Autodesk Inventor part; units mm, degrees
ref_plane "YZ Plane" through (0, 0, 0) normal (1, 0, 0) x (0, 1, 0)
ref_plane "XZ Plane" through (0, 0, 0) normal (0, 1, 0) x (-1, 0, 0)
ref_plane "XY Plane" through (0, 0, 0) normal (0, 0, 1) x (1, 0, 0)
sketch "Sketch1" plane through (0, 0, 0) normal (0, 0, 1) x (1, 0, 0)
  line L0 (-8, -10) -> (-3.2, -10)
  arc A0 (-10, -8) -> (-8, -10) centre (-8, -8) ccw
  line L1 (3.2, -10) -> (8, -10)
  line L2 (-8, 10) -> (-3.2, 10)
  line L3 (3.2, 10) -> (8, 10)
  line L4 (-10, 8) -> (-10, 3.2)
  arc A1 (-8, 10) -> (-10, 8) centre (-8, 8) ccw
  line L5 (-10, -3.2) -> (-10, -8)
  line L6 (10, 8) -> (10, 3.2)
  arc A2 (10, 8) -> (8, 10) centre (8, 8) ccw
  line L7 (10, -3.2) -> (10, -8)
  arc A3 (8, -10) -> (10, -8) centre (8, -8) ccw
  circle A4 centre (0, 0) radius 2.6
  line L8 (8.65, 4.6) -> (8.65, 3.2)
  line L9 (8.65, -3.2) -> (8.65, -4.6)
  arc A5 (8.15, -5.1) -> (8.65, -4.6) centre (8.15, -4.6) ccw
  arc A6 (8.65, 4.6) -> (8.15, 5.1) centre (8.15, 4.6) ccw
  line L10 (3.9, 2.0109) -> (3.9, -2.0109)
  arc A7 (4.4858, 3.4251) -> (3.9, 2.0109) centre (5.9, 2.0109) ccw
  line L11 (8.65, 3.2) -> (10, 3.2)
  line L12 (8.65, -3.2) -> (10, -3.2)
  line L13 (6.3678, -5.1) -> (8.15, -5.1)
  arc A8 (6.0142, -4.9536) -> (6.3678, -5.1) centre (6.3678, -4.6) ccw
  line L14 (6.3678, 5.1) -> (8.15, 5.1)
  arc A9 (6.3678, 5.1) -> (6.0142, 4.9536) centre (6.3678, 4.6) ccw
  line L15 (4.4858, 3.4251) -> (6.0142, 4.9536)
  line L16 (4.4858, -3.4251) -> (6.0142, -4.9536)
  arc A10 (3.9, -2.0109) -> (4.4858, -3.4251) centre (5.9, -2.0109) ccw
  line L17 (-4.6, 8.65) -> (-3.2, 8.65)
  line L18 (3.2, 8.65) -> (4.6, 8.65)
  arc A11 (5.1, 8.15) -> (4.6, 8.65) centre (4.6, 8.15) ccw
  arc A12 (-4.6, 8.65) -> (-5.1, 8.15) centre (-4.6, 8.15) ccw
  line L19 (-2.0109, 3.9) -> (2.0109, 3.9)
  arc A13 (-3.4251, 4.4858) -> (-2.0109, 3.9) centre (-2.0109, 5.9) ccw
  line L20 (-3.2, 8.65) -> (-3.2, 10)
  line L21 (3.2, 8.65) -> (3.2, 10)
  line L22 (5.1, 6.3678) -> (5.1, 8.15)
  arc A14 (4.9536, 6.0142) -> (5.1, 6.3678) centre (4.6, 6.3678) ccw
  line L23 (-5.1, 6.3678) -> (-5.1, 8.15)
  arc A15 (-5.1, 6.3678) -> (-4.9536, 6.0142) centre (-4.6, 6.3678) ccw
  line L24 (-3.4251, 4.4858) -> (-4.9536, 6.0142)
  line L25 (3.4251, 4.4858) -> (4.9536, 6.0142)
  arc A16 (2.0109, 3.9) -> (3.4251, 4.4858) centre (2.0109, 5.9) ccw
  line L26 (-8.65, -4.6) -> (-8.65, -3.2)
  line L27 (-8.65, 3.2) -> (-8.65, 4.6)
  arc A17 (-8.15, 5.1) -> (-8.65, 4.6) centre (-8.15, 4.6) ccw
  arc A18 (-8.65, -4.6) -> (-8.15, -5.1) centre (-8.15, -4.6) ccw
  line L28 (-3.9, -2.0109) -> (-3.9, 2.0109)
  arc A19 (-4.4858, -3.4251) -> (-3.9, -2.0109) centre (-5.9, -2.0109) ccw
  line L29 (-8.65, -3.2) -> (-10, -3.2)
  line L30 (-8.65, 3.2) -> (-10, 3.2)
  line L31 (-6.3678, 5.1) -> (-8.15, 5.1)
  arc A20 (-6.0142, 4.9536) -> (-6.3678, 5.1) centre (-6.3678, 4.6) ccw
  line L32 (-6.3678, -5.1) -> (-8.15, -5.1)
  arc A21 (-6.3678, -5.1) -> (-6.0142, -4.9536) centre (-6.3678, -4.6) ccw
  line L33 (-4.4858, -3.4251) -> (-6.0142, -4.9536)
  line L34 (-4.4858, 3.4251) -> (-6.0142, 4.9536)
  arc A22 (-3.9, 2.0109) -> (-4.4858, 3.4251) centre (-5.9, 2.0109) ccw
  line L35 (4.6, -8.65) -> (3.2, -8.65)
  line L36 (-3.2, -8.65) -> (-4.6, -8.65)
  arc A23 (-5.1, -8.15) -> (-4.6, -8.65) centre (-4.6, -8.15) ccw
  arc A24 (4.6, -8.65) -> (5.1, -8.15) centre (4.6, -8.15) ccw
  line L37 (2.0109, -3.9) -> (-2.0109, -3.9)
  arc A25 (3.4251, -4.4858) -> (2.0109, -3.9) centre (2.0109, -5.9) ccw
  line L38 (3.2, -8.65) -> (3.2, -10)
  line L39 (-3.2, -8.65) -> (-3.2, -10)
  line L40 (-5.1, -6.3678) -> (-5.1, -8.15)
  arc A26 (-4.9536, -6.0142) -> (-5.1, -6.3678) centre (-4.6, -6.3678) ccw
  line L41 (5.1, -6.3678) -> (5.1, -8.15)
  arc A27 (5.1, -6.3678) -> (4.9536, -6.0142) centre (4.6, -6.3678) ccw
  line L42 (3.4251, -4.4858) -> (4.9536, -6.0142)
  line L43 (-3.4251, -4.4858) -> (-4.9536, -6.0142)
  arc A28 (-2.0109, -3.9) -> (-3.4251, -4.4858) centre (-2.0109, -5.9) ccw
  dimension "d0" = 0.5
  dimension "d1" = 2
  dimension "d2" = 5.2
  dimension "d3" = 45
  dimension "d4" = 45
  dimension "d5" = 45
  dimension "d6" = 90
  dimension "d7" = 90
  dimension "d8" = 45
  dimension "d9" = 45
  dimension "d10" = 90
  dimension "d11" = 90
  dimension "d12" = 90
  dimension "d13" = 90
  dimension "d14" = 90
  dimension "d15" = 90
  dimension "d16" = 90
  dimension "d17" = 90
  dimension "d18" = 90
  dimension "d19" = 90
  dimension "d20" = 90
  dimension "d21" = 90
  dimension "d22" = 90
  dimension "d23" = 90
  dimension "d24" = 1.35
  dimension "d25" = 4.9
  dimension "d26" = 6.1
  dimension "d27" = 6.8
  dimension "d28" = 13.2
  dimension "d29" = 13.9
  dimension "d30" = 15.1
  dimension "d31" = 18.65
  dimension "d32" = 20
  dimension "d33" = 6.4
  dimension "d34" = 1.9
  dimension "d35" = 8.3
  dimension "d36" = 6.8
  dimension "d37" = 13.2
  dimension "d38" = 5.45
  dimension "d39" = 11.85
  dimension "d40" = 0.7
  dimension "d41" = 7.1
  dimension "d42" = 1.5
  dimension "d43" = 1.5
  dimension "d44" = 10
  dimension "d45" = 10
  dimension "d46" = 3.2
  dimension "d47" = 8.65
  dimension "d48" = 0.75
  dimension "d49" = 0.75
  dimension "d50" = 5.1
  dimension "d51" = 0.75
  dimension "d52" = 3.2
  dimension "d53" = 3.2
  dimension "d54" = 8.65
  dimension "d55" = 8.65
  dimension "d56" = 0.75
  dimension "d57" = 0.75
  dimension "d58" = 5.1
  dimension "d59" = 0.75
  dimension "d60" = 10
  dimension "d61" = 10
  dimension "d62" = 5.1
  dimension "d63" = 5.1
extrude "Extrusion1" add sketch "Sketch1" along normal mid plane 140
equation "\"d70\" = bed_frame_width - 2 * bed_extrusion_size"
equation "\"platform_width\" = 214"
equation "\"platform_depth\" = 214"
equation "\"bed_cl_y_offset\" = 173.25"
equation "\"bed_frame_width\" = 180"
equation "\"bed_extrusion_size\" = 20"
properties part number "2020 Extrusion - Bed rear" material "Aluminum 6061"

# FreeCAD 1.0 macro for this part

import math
import FreeCAD as App
import Part
import Sketcher
from FreeCAD import Vector
Q = App.Units.Quantity

doc = App.newDocument("Part")
params = doc.addObject("Spreadsheet::Sheet", "Params")
for row, (alias, value) in enumerate([
    ("sketch1_radius", "2 mm"),
    ("sketch1_diameter", "5.2 mm"),
    ("sketch1_radius2", "0.5 mm"),
    ("sketch1_width", "1.35 mm"),
    ("pad1_length", "140 mm"),
], start=1):
    params.set(f"A{row}", alias)
    params.set(f"B{row}", "=" + value)
    params.setAlias(f"B{row}", alias)

body = doc.addObject("PartDesign::Body", "Body")

# Sketch on XY plane
sketch1 = body.newObject("Sketcher::SketchObject", "Sketch")
sketch1.AttachmentSupport = (doc.getObject("XY_Plane"), [""])
sketch1.MapMode = "FlatFace"
sketch1.addGeometry([
    Part.ArcOfCircle(Part.Circle(Vector(-8, -8, 0), Vector(0, 0, 1), 2), math.radians(180), math.radians(270)),  # 0
    Part.LineSegment(Vector(-8, -10, 0), Vector(-3.2, -10, 0)),  # 1
    Part.LineSegment(Vector(-3.2, -10, 0), Vector(-3.2, -8.65, 0)),  # 2
    Part.LineSegment(Vector(-3.2, -8.65, 0), Vector(-4.6, -8.65, 0)),  # 3
    Part.ArcOfCircle(Part.Circle(Vector(-4.6, -8.15, 0), Vector(0, 0, 1), 0.5), math.radians(180), math.radians(270)),  # 4
    Part.LineSegment(Vector(-5.1, -8.15, 0), Vector(-5.1, -6.37, 0)),  # 5
    Part.ArcOfCircle(Part.Circle(Vector(-4.6, -6.37, 0), Vector(0, 0, 1), 0.5), math.radians(135), math.radians(180)),  # 6
    Part.LineSegment(Vector(-4.95, -6.01, 0), Vector(-3.43, -4.49, 0)),  # 7
    Part.ArcOfCircle(Part.Circle(Vector(-2.01, -5.9, 0), Vector(0, 0, 1), 2), math.radians(90), math.radians(135)),  # 8
    Part.LineSegment(Vector(-2.01, -3.9, 0), Vector(2.01, -3.9, 0)),  # 9
    Part.ArcOfCircle(Part.Circle(Vector(2.01, -5.9, 0), Vector(0, 0, 1), 2), math.radians(45), math.radians(90)),  # 10
    Part.LineSegment(Vector(3.43, -4.49, 0), Vector(4.95, -6.01, 0)),  # 11
    Part.ArcOfCircle(Part.Circle(Vector(4.6, -6.37, 0), Vector(0, 0, 1), 0.5), math.radians(0), math.radians(45)),  # 12
    Part.LineSegment(Vector(5.1, -6.37, 0), Vector(5.1, -8.15, 0)),  # 13
    Part.ArcOfCircle(Part.Circle(Vector(4.6, -8.15, 0), Vector(0, 0, 1), 0.5), math.radians(-90), math.radians(0)),  # 14
    Part.LineSegment(Vector(4.6, -8.65, 0), Vector(3.2, -8.65, 0)),  # 15
    Part.LineSegment(Vector(3.2, -8.65, 0), Vector(3.2, -10, 0)),  # 16
    Part.LineSegment(Vector(3.2, -10, 0), Vector(8, -10, 0)),  # 17
    Part.ArcOfCircle(Part.Circle(Vector(8, -8, 0), Vector(0, 0, 1), 2), math.radians(-90), math.radians(0)),  # 18
    Part.LineSegment(Vector(10, -8, 0), Vector(10, -3.2, 0)),  # 19
    Part.LineSegment(Vector(10, -3.2, 0), Vector(8.65, -3.2, 0)),  # 20
    Part.LineSegment(Vector(8.65, -3.2, 0), Vector(8.65, -4.6, 0)),  # 21
    Part.ArcOfCircle(Part.Circle(Vector(8.15, -4.6, 0), Vector(0, 0, 1), 0.5), math.radians(-90), math.radians(0)),  # 22
    Part.LineSegment(Vector(8.15, -5.1, 0), Vector(6.37, -5.1, 0)),  # 23
    Part.ArcOfCircle(Part.Circle(Vector(6.37, -4.6, 0), Vector(0, 0, 1), 0.5), math.radians(-135), math.radians(-90)),  # 24
    Part.LineSegment(Vector(6.01, -4.95, 0), Vector(4.49, -3.43, 0)),  # 25
    Part.ArcOfCircle(Part.Circle(Vector(5.9, -2.01, 0), Vector(0, 0, 1), 2), math.radians(180), math.radians(225)),  # 26
    Part.LineSegment(Vector(3.9, -2.01, 0), Vector(3.9, 2.01, 0)),  # 27
    Part.ArcOfCircle(Part.Circle(Vector(5.9, 2.01, 0), Vector(0, 0, 1), 2), math.radians(135), math.radians(180)),  # 28
    Part.LineSegment(Vector(4.49, 3.43, 0), Vector(6.01, 4.95, 0)),  # 29
    Part.ArcOfCircle(Part.Circle(Vector(6.37, 4.6, 0), Vector(0, 0, 1), 0.5), math.radians(90), math.radians(135)),  # 30
    Part.LineSegment(Vector(6.37, 5.1, 0), Vector(8.15, 5.1, 0)),  # 31
    Part.ArcOfCircle(Part.Circle(Vector(8.15, 4.6, 0), Vector(0, 0, 1), 0.5), math.radians(0), math.radians(90)),  # 32
    Part.LineSegment(Vector(8.65, 4.6, 0), Vector(8.65, 3.2, 0)),  # 33
    Part.LineSegment(Vector(8.65, 3.2, 0), Vector(10, 3.2, 0)),  # 34
    Part.LineSegment(Vector(10, 3.2, 0), Vector(10, 8, 0)),  # 35
    Part.ArcOfCircle(Part.Circle(Vector(8, 8, 0), Vector(0, 0, 1), 2), math.radians(0), math.radians(90)),  # 36
    Part.LineSegment(Vector(8, 10, 0), Vector(3.2, 10, 0)),  # 37
    Part.LineSegment(Vector(3.2, 10, 0), Vector(3.2, 8.65, 0)),  # 38
    Part.LineSegment(Vector(3.2, 8.65, 0), Vector(4.6, 8.65, 0)),  # 39
    Part.ArcOfCircle(Part.Circle(Vector(4.6, 8.15, 0), Vector(0, 0, 1), 0.5), math.radians(0), math.radians(90)),  # 40
    Part.LineSegment(Vector(5.1, 8.15, 0), Vector(5.1, 6.37, 0)),  # 41
    Part.ArcOfCircle(Part.Circle(Vector(4.6, 6.37, 0), Vector(0, 0, 1), 0.5), math.radians(-45), math.radians(0)),  # 42
    Part.LineSegment(Vector(4.95, 6.01, 0), Vector(3.43, 4.49, 0)),  # 43
    Part.ArcOfCircle(Part.Circle(Vector(2.01, 5.9, 0), Vector(0, 0, 1), 2), math.radians(-90), math.radians(-45)),  # 44
    Part.LineSegment(Vector(2.01, 3.9, 0), Vector(-2.01, 3.9, 0)),  # 45
    Part.ArcOfCircle(Part.Circle(Vector(-2.01, 5.9, 0), Vector(0, 0, 1), 2), math.radians(-135), math.radians(-90)),  # 46
    Part.LineSegment(Vector(-3.43, 4.49, 0), Vector(-4.95, 6.01, 0)),  # 47
    Part.ArcOfCircle(Part.Circle(Vector(-4.6, 6.37, 0), Vector(0, 0, 1), 0.5), math.radians(180), math.radians(225)),  # 48
    Part.LineSegment(Vector(-5.1, 6.37, 0), Vector(-5.1, 8.15, 0)),  # 49
    Part.ArcOfCircle(Part.Circle(Vector(-4.6, 8.15, 0), Vector(0, 0, 1), 0.5), math.radians(90), math.radians(180)),  # 50
    Part.LineSegment(Vector(-4.6, 8.65, 0), Vector(-3.2, 8.65, 0)),  # 51
    Part.LineSegment(Vector(-3.2, 8.65, 0), Vector(-3.2, 10, 0)),  # 52
    Part.LineSegment(Vector(-3.2, 10, 0), Vector(-8, 10, 0)),  # 53
    Part.ArcOfCircle(Part.Circle(Vector(-8, 8, 0), Vector(0, 0, 1), 2), math.radians(90), math.radians(180)),  # 54
    Part.LineSegment(Vector(-10, 8, 0), Vector(-10, 3.2, 0)),  # 55
    Part.LineSegment(Vector(-10, 3.2, 0), Vector(-8.65, 3.2, 0)),  # 56
    Part.LineSegment(Vector(-8.65, 3.2, 0), Vector(-8.65, 4.6, 0)),  # 57
    Part.ArcOfCircle(Part.Circle(Vector(-8.15, 4.6, 0), Vector(0, 0, 1), 0.5), math.radians(90), math.radians(180)),  # 58
    Part.LineSegment(Vector(-8.15, 5.1, 0), Vector(-6.37, 5.1, 0)),  # 59
    Part.ArcOfCircle(Part.Circle(Vector(-6.37, 4.6, 0), Vector(0, 0, 1), 0.5), math.radians(45), math.radians(90)),  # 60
    Part.LineSegment(Vector(-6.01, 4.95, 0), Vector(-4.49, 3.43, 0)),  # 61
    Part.ArcOfCircle(Part.Circle(Vector(-5.9, 2.01, 0), Vector(0, 0, 1), 2), math.radians(0), math.radians(45)),  # 62
    Part.LineSegment(Vector(-3.9, 2.01, 0), Vector(-3.9, -2.01, 0)),  # 63
    Part.ArcOfCircle(Part.Circle(Vector(-5.9, -2.01, 0), Vector(0, 0, 1), 2), math.radians(-45), math.radians(0)),  # 64
    Part.LineSegment(Vector(-4.49, -3.43, 0), Vector(-6.01, -4.95, 0)),  # 65
    Part.ArcOfCircle(Part.Circle(Vector(-6.37, -4.6, 0), Vector(0, 0, 1), 0.5), math.radians(-90), math.radians(-45)),  # 66
    Part.LineSegment(Vector(-6.37, -5.1, 0), Vector(-8.15, -5.1, 0)),  # 67
    Part.ArcOfCircle(Part.Circle(Vector(-8.15, -4.6, 0), Vector(0, 0, 1), 0.5), math.radians(180), math.radians(270)),  # 68
    Part.LineSegment(Vector(-8.65, -4.6, 0), Vector(-8.65, -3.2, 0)),  # 69
    Part.LineSegment(Vector(-8.65, -3.2, 0), Vector(-10, -3.2, 0)),  # 70
    Part.LineSegment(Vector(-10, -3.2, 0), Vector(-10, -8, 0)),  # 71
    Part.Circle(Vector(0, 0, 0), Vector(0, 0, 1), 2.6),  # 72
], False)
sketch1.addConstraint([
    Sketcher.Constraint("Tangent", 0, 2, 1, 1),
    Sketcher.Constraint("Coincident", 1, 2, 2, 1),
    Sketcher.Constraint("Coincident", 2, 2, 3, 1),
    Sketcher.Constraint("Tangent", 3, 2, 4, 2),
    Sketcher.Constraint("Tangent", 4, 1, 5, 1),
    Sketcher.Constraint("Tangent", 5, 2, 6, 2),
    Sketcher.Constraint("Tangent", 6, 1, 7, 1),
    Sketcher.Constraint("Tangent", 7, 2, 8, 2),
    Sketcher.Constraint("Tangent", 8, 1, 9, 1),
    Sketcher.Constraint("Tangent", 9, 2, 10, 2),
    Sketcher.Constraint("Tangent", 10, 1, 11, 1),
    Sketcher.Constraint("Tangent", 11, 2, 12, 2),
    Sketcher.Constraint("Tangent", 12, 1, 13, 1),
    Sketcher.Constraint("Tangent", 13, 2, 14, 2),
    Sketcher.Constraint("Tangent", 14, 1, 15, 1),
    Sketcher.Constraint("Coincident", 15, 2, 16, 1),
    Sketcher.Constraint("Coincident", 16, 2, 17, 1),
    Sketcher.Constraint("Tangent", 17, 2, 18, 1),
    Sketcher.Constraint("Tangent", 18, 2, 19, 1),
    Sketcher.Constraint("Coincident", 19, 2, 20, 1),
    Sketcher.Constraint("Coincident", 20, 2, 21, 1),
    Sketcher.Constraint("Tangent", 21, 2, 22, 2),
    Sketcher.Constraint("Tangent", 22, 1, 23, 1),
    Sketcher.Constraint("Tangent", 23, 2, 24, 2),
    Sketcher.Constraint("Tangent", 24, 1, 25, 1),
    Sketcher.Constraint("Tangent", 25, 2, 26, 2),
    Sketcher.Constraint("Tangent", 26, 1, 27, 1),
    Sketcher.Constraint("Tangent", 27, 2, 28, 2),
    Sketcher.Constraint("Tangent", 28, 1, 29, 1),
    Sketcher.Constraint("Tangent", 29, 2, 30, 2),
    Sketcher.Constraint("Tangent", 30, 1, 31, 1),
    Sketcher.Constraint("Tangent", 31, 2, 32, 2),
    Sketcher.Constraint("Tangent", 32, 1, 33, 1),
    Sketcher.Constraint("Coincident", 33, 2, 34, 1),
    Sketcher.Constraint("Coincident", 34, 2, 35, 1),
    Sketcher.Constraint("Tangent", 35, 2, 36, 1),
    Sketcher.Constraint("Tangent", 36, 2, 37, 1),
    Sketcher.Constraint("Coincident", 37, 2, 38, 1),
    Sketcher.Constraint("Coincident", 38, 2, 39, 1),
    Sketcher.Constraint("Tangent", 39, 2, 40, 2),
    Sketcher.Constraint("Tangent", 40, 1, 41, 1),
    Sketcher.Constraint("Tangent", 41, 2, 42, 2),
    Sketcher.Constraint("Tangent", 42, 1, 43, 1),
    Sketcher.Constraint("Tangent", 43, 2, 44, 2),
    Sketcher.Constraint("Tangent", 44, 1, 45, 1),
    Sketcher.Constraint("Tangent", 45, 2, 46, 2),
    Sketcher.Constraint("Tangent", 46, 1, 47, 1),
    Sketcher.Constraint("Tangent", 47, 2, 48, 2),
    Sketcher.Constraint("Tangent", 48, 1, 49, 1),
    Sketcher.Constraint("Tangent", 49, 2, 50, 2),
    Sketcher.Constraint("Tangent", 50, 1, 51, 1),
    Sketcher.Constraint("Coincident", 51, 2, 52, 1),
    Sketcher.Constraint("Coincident", 52, 2, 53, 1),
    Sketcher.Constraint("Tangent", 53, 2, 54, 1),
    Sketcher.Constraint("Tangent", 54, 2, 55, 1),
    Sketcher.Constraint("Coincident", 55, 2, 56, 1),
    Sketcher.Constraint("Coincident", 56, 2, 57, 1),
    Sketcher.Constraint("Tangent", 57, 2, 58, 2),
    Sketcher.Constraint("Tangent", 58, 1, 59, 1),
    Sketcher.Constraint("Tangent", 59, 2, 60, 2),
    Sketcher.Constraint("Tangent", 60, 1, 61, 1),
    Sketcher.Constraint("Tangent", 61, 2, 62, 2),
    Sketcher.Constraint("Tangent", 62, 1, 63, 1),
    Sketcher.Constraint("Tangent", 63, 2, 64, 2),
    Sketcher.Constraint("Tangent", 64, 1, 65, 1),
    Sketcher.Constraint("Tangent", 65, 2, 66, 2),
    Sketcher.Constraint("Tangent", 66, 1, 67, 1),
    Sketcher.Constraint("Tangent", 67, 2, 68, 2),
    Sketcher.Constraint("Tangent", 68, 1, 69, 1),
    Sketcher.Constraint("Coincident", 69, 2, 70, 1),
    Sketcher.Constraint("Coincident", 70, 2, 71, 1),
    Sketcher.Constraint("Tangent", 71, 2, 0, 1),
    Sketcher.Constraint("Horizontal", 1),
    Sketcher.Constraint("Vertical", 2),
    Sketcher.Constraint("Horizontal", 3),
    Sketcher.Constraint("Vertical", 5),
    Sketcher.Constraint("Horizontal", 9),
    Sketcher.Constraint("Vertical", 13),
    Sketcher.Constraint("Horizontal", 15),
    Sketcher.Constraint("Vertical", 16),
    Sketcher.Constraint("Horizontal", 17),
    Sketcher.Constraint("Vertical", 19),
    Sketcher.Constraint("Horizontal", 20),
    Sketcher.Constraint("Vertical", 21),
    Sketcher.Constraint("Horizontal", 23),
    Sketcher.Constraint("Vertical", 27),
    Sketcher.Constraint("Horizontal", 31),
    Sketcher.Constraint("Vertical", 33),
    Sketcher.Constraint("Horizontal", 34),
    Sketcher.Constraint("Vertical", 35),
    Sketcher.Constraint("Horizontal", 37),
    Sketcher.Constraint("Vertical", 38),
    Sketcher.Constraint("Horizontal", 39),
    Sketcher.Constraint("Vertical", 41),
    Sketcher.Constraint("Horizontal", 45),
    Sketcher.Constraint("Vertical", 49),
    Sketcher.Constraint("Horizontal", 51),
    Sketcher.Constraint("Vertical", 52),
    Sketcher.Constraint("Horizontal", 53),
    Sketcher.Constraint("Vertical", 55),
    Sketcher.Constraint("Horizontal", 56),
    Sketcher.Constraint("Vertical", 57),
    Sketcher.Constraint("Horizontal", 59),
    Sketcher.Constraint("Vertical", 63),
    Sketcher.Constraint("Horizontal", 67),
    Sketcher.Constraint("Vertical", 69),
    Sketcher.Constraint("Horizontal", 70),
    Sketcher.Constraint("Vertical", 71),
    Sketcher.Constraint("Coincident", 72, 3, -1, 1),
    Sketcher.Constraint("Equal", 4, 6),
    Sketcher.Constraint("Equal", 0, 8),
    Sketcher.Constraint("Equal", 8, 10),
    Sketcher.Constraint("Equal", 6, 12),
    Sketcher.Constraint("Equal", 12, 14),
    Sketcher.Constraint("Equal", 10, 18),
    Sketcher.Constraint("Equal", 14, 22),
    Sketcher.Constraint("Equal", 22, 24),
    Sketcher.Constraint("Equal", 18, 26),
    Sketcher.Constraint("Equal", 26, 28),
    Sketcher.Constraint("Equal", 24, 30),
    Sketcher.Constraint("Equal", 30, 32),
    Sketcher.Constraint("Equal", 28, 36),
    Sketcher.Constraint("Equal", 32, 40),
    Sketcher.Constraint("Equal", 40, 42),
    Sketcher.Constraint("Equal", 36, 44),
    Sketcher.Constraint("Equal", 44, 46),
    Sketcher.Constraint("Equal", 42, 48),
    Sketcher.Constraint("Equal", 48, 50),
    Sketcher.Constraint("Equal", 46, 54),
    Sketcher.Constraint("Equal", 50, 58),
    Sketcher.Constraint("Equal", 58, 60),
    Sketcher.Constraint("Equal", 54, 62),
    Sketcher.Constraint("Equal", 62, 64),
    Sketcher.Constraint("Equal", 60, 66),
    Sketcher.Constraint("Equal", 66, 68),
    Sketcher.Constraint("Symmetric", 0, 3, 36, 3, -1, 1),
    Sketcher.Constraint("Symmetric", 4, 3, 40, 3, -1, 1),
    Sketcher.Constraint("Symmetric", 8, 3, 44, 3, -1, 1),
    Sketcher.Constraint("Symmetric", 12, 3, 48, 3, -1, 1),
    Sketcher.Constraint("Symmetric", 18, 3, 54, 3, -1, 1),
    Sketcher.Constraint("Symmetric", 22, 3, 58, 3, -1, 1),
    Sketcher.Constraint("Symmetric", 26, 3, 62, 3, -1, 1),
    Sketcher.Constraint("Symmetric", 30, 3, 66, 3, -1, 1),
    Sketcher.Constraint("Symmetric", 15, 2, 51, 2, -1, 1),
    Sketcher.Constraint("Symmetric", 33, 2, 69, 2, -1, 1),
    Sketcher.Constraint("Symmetric", 6, 3, 12, 3, -2),
    Sketcher.Constraint("Symmetric", 0, 3, 18, 3, -2),
    Sketcher.Constraint("Symmetric", 32, 3, 58, 3, -2),
    Sketcher.Constraint("Symmetric", 2, 2, 15, 2, -2),
    Sketcher.Constraint("Symmetric", 43, 2, 46, 1, -2),
    Sketcher.Constraint("Symmetric", 29, 2, 60, 1, -2),
    Sketcher.Constraint("Symmetric", 25, 2, 64, 1, -2),
    Sketcher.Constraint("Perpendicular", 7, 11),
    Sketcher.Constraint("Parallel", 11, 25),
    Sketcher.Constraint("Perpendicular", 25, 29),
    Sketcher.Constraint("Horizontal", 34, 2, 55, 2),
    Sketcher.Constraint("Horizontal", 20, 2, 69, 2),
    Sketcher.Constraint("Vertical", 16, 2, 37, 2),
    Sketcher.Constraint("Equal", 70, 2),
    Sketcher.Constraint("Equal", 67, 5),
    Sketcher.Constraint("Equal", 53, 19),
    Sketcher.Constraint("Equal", 51, 21),
    Sketcher.Constraint("Equal", 45, 27),
    Sketcher.Constraint("Equal", 11, 25),
    Sketcher.Constraint("Radius", 0, Q("2 mm")),
    Sketcher.Constraint("Diameter", 72, Q("5.2 mm")),
    Sketcher.Constraint("Radius", 4, Q("0.5 mm")),
    Sketcher.Constraint("DistanceY", 0, 2, -1, 1, Q("10 mm")),
    Sketcher.Constraint("DistanceX", 20, 2, 20, 1, Q("1.35 mm")),
    Sketcher.Constraint("DistanceX", 1, 2, -1, 1, Q("3.2 mm")),
    Sketcher.Constraint("DistanceX", 4, 1, -1, 1, Q("5.1 mm")),
    Sketcher.Constraint("DistanceY", 8, 3, -1, 1, Q("5.9 mm")),
    Sketcher.Constraint("DistanceX", 9, 1, 9, 2, Q("4.0218 mm")),
])
sketch1.setExpression("Constraints[164]", "Params.sketch1_radius")
sketch1.setExpression("Constraints[165]", "Params.sketch1_diameter")
sketch1.setExpression("Constraints[166]", "Params.sketch1_radius2")
sketch1.setExpression("Constraints[168]", "Params.sketch1_width")
pad1 = body.newObject("PartDesign::Pad", "Pad")
pad1.Profile = sketch1
pad1.setExpression("Length", "Params.pad1_length")
pad1.Midplane = True

doc.recompute()
